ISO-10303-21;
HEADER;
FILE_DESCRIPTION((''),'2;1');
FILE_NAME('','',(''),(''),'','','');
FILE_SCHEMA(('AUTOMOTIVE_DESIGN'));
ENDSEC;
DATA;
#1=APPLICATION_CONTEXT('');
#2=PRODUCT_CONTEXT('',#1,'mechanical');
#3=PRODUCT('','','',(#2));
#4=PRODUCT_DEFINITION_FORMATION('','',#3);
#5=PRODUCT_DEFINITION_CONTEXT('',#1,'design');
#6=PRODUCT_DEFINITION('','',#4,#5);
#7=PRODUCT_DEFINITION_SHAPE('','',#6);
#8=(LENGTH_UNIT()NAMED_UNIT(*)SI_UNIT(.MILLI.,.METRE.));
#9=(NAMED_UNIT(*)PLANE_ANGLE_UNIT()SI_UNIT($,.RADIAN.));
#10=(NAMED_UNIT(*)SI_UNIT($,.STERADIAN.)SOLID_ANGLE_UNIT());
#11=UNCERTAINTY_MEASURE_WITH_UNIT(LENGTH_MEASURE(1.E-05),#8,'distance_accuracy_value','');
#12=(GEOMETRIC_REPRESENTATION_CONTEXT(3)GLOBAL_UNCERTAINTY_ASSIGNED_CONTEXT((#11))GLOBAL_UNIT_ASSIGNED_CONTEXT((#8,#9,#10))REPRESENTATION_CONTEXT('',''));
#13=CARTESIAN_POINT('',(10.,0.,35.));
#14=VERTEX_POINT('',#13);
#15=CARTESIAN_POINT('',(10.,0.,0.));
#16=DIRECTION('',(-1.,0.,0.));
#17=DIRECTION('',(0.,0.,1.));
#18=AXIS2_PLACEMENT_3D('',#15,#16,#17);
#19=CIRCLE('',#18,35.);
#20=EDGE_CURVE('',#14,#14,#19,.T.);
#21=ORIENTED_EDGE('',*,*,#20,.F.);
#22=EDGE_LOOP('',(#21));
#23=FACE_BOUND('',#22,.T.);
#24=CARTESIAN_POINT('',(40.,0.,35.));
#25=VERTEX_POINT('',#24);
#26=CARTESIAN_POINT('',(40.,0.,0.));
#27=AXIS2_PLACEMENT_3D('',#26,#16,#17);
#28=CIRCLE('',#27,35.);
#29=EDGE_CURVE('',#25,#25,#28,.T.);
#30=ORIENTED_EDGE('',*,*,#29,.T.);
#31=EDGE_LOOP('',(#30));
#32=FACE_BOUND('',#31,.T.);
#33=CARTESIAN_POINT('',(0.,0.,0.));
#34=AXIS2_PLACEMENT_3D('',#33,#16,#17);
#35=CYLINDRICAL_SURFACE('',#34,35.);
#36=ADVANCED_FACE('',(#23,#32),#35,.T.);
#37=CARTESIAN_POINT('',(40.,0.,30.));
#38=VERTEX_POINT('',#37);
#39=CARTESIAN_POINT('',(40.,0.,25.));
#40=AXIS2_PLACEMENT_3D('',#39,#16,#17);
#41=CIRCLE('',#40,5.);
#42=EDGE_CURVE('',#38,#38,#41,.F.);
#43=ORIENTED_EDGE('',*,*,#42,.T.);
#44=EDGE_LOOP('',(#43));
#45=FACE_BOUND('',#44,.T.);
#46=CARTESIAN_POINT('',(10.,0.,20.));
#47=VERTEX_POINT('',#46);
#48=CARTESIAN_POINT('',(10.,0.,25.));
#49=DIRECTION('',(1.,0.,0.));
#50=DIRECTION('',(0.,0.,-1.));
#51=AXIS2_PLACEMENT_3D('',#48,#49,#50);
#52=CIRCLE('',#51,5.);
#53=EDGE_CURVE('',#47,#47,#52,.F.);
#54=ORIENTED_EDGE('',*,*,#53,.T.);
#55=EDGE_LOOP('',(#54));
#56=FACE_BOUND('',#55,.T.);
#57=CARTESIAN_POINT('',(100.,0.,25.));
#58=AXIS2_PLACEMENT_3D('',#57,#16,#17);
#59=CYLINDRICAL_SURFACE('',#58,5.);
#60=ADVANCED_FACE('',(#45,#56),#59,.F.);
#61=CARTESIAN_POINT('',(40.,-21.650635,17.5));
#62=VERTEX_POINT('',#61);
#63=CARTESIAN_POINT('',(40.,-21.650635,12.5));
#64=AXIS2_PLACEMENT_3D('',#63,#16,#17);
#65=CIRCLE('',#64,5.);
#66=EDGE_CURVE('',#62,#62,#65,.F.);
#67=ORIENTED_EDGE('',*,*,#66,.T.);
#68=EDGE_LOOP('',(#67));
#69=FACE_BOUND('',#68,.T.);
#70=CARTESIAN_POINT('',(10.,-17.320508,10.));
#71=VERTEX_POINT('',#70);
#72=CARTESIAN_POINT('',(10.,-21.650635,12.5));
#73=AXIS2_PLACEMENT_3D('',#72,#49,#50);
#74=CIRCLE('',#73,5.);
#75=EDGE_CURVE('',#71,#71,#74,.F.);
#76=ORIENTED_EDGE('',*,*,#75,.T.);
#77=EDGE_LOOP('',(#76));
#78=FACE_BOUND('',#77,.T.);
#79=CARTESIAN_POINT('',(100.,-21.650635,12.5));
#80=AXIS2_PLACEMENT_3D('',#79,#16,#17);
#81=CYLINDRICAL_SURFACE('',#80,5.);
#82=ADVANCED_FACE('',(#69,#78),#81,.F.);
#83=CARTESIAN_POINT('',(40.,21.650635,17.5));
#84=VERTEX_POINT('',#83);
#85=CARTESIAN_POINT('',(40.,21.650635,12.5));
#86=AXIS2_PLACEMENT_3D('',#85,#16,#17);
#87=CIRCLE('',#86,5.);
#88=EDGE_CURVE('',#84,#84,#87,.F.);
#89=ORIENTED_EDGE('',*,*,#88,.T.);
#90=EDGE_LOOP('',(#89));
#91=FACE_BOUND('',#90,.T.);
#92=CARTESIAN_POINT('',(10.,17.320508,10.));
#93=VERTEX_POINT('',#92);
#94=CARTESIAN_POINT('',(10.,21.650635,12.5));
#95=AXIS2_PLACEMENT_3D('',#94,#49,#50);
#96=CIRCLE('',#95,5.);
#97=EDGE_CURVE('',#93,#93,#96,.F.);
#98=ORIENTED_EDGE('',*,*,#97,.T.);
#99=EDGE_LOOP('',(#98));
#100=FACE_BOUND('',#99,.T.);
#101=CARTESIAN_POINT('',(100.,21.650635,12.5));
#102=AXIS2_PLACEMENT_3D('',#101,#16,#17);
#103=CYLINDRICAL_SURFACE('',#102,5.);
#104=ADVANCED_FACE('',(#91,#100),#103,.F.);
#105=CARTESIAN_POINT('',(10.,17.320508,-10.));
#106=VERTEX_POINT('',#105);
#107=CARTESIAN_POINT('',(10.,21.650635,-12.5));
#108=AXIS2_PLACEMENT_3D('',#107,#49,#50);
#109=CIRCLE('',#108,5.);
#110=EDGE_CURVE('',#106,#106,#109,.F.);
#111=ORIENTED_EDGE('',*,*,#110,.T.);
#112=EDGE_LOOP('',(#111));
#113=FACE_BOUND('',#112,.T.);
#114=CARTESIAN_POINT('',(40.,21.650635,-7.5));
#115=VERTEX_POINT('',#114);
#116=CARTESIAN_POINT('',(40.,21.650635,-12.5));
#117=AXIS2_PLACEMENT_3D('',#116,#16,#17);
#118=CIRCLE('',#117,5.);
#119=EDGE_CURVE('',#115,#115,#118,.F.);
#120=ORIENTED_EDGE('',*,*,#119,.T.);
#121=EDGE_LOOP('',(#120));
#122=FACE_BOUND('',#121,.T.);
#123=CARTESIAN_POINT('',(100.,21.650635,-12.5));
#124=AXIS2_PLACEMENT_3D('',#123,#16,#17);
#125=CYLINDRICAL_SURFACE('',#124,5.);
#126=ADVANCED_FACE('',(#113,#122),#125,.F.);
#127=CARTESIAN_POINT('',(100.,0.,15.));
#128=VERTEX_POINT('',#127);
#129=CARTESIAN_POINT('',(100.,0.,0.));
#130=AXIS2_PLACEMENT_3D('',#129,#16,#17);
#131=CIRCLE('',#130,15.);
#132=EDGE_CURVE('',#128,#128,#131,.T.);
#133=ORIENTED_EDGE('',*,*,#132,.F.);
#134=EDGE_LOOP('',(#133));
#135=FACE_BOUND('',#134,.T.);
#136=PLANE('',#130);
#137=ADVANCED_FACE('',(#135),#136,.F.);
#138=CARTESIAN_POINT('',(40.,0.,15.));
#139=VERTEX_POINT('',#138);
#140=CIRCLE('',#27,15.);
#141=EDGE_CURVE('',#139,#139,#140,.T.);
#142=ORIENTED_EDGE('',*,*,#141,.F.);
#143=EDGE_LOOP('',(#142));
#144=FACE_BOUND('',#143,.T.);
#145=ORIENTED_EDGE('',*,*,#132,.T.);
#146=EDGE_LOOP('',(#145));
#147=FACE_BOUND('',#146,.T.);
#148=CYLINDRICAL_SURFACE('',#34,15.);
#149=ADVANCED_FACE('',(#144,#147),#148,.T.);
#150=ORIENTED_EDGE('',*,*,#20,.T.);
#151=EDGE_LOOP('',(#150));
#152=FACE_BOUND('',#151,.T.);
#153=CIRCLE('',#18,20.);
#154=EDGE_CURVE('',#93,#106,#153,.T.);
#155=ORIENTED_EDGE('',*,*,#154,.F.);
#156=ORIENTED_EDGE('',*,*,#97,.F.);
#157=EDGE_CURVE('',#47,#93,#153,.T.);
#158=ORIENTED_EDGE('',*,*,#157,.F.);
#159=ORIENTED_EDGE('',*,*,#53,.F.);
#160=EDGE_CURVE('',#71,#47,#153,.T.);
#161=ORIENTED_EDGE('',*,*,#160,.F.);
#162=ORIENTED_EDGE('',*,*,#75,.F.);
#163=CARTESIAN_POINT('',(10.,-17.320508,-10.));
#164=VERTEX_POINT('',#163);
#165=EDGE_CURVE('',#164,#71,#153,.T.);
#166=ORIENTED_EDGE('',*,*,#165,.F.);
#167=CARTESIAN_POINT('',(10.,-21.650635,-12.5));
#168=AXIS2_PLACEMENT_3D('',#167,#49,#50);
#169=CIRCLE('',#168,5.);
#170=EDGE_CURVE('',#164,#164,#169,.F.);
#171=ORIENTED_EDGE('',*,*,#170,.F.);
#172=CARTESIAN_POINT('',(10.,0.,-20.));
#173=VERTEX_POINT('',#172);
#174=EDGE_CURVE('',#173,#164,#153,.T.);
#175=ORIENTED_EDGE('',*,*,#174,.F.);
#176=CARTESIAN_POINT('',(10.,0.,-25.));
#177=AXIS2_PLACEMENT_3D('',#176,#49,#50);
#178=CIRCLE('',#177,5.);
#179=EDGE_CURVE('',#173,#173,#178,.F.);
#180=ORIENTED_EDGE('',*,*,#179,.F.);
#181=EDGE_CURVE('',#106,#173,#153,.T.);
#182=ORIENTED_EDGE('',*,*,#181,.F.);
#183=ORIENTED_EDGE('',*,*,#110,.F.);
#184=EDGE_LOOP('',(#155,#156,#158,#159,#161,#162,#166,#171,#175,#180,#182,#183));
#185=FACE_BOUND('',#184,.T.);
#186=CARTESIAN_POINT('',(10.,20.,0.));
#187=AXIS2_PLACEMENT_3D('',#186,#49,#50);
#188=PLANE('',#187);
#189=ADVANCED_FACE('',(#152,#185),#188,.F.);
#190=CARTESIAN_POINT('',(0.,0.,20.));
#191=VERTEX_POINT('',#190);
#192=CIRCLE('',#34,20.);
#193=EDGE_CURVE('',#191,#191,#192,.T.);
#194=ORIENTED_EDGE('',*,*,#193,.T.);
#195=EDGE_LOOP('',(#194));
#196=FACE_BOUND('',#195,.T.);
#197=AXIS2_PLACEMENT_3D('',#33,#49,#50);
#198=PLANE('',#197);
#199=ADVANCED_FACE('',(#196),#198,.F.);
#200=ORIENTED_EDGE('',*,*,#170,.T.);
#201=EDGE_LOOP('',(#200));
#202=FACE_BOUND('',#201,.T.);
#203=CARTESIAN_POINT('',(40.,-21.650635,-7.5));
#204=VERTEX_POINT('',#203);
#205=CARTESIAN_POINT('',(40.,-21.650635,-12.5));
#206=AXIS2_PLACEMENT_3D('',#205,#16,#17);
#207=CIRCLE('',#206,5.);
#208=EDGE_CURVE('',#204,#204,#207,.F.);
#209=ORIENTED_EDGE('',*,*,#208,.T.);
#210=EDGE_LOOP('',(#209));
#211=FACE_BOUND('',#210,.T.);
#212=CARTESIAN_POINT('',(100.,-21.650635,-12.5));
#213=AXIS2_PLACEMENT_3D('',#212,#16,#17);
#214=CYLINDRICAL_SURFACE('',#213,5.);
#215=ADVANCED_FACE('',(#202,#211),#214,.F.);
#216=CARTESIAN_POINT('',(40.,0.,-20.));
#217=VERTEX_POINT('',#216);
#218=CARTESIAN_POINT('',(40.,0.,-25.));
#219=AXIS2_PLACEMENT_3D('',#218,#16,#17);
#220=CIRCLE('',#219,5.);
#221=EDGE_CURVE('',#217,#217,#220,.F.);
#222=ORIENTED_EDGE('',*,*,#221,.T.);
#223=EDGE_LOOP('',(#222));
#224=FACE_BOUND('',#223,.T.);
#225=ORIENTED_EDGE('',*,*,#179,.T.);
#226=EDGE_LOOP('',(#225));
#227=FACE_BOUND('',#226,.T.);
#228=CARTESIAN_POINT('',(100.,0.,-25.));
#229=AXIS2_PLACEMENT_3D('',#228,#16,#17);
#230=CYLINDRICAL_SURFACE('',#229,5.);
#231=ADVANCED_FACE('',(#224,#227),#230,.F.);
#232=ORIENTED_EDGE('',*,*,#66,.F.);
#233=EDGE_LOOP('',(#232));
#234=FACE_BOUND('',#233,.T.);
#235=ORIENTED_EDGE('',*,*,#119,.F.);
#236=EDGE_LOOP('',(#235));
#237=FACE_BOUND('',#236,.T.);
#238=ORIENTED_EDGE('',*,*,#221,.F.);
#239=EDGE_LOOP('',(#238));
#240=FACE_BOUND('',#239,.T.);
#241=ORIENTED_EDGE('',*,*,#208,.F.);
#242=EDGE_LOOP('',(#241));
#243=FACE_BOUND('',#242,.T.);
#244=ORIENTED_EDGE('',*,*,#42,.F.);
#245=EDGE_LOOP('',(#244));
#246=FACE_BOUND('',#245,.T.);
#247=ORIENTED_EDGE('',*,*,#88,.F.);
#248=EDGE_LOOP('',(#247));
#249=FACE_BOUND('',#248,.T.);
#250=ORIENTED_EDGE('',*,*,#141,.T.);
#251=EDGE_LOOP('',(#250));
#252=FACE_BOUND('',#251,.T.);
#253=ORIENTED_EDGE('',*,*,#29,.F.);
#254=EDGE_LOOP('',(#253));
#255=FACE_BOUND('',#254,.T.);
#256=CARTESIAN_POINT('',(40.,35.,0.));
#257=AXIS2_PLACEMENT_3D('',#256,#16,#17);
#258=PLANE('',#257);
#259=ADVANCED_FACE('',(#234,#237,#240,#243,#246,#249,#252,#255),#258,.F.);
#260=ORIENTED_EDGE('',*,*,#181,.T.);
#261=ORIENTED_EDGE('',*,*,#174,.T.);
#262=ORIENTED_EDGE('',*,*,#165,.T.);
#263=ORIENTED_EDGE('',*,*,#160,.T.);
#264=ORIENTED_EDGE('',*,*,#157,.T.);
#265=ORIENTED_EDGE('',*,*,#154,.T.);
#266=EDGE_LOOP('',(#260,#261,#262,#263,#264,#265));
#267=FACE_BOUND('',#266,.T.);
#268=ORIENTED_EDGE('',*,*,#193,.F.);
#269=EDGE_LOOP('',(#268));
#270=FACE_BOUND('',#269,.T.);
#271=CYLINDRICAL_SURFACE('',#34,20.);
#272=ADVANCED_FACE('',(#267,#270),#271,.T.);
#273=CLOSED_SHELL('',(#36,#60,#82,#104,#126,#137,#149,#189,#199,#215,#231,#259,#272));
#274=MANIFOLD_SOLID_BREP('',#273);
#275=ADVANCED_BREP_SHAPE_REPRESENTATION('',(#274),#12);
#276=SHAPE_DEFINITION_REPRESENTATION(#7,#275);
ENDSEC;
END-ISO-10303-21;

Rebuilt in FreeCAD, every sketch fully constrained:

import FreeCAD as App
import Part
import Sketcher


def add_polygon(sketch, points):
    """Adds a closed chain of lines whose ends are joined by coincident constraints."""
    first, n = sketch.GeometryCount, len(points)
    for a, b in zip(points, points[1:] + points[:1]):
        sketch.addGeometry(Part.LineSegment(App.Vector(*a, 0), App.Vector(*b, 0)), False)
    for i in range(n):
        sketch.addConstraint(Sketcher.Constraint("Coincident", first + i, 2, first + (i + 1) % n, 1))

doc = App.newDocument("Part")
body = doc.addObject("PartDesign::Body", "Body")

# Sketch on XY plane
sketch1 = body.newObject("Sketcher::SketchObject", "Sketch")
sketch1.AttachmentSupport = (doc.getObject("XY_Plane"), [""])
sketch1.MapMode = "FlatFace"
add_polygon(sketch1, [(0, 0), (100, 0), (100, 15), (40, 15), (40, 35), (10, 35), (10, 20), (0, 20)])  # lines 0-7
sketch1.addConstraint([
    Sketcher.Constraint("Horizontal", 0),
    Sketcher.Constraint("Vertical", 1),
    Sketcher.Constraint("Horizontal", 2),
    Sketcher.Constraint("Vertical", 3),
    Sketcher.Constraint("Horizontal", 4),
    Sketcher.Constraint("Vertical", 5),
    Sketcher.Constraint("Horizontal", 6),
    Sketcher.Constraint("Vertical", 7),
    Sketcher.Constraint("Coincident", 7, 2, -1, 1),
    Sketcher.Constraint("Equal", 1, 5),
    Sketcher.Constraint("DistanceX", 0, 1, 0, 2, 100.0),
    Sketcher.Constraint("DistanceX", 2, 2, 2, 1, 60.0),
    Sketcher.Constraint("DistanceX", 4, 2, 4, 1, 30.0),
    Sketcher.Constraint("DistanceY", 1, 1, 1, 2, 15.0),
    Sketcher.Constraint("DistanceY", 3, 1, 3, 2, 20.0),
])
revolution = body.newObject("PartDesign::Revolution", "Revolution")
revolution.Profile = sketch1
revolution.ReferenceAxis = (sketch1, ["H_Axis"])
revolution.Angle = 360

# Sketch on YZ plane
sketch2 = body.newObject("Sketcher::SketchObject", "Sketch001")
sketch2.AttachmentSupport = (doc.getObject("YZ_Plane"), [""])
sketch2.MapMode = "FlatFace"
sketch2.addGeometry(Part.Circle(App.Vector(0, -25, 0), App.Vector(0, 0, 1), 5), False)
sketch2.addConstraint([
    Sketcher.Constraint("PointOnObject", 0, 3, -2),
    Sketcher.Constraint("Diameter", 0, 10.0),
    Sketcher.Constraint("DistanceY", 0, 3, -1, 1, 25.0),
])
pocket1 = body.newObject("PartDesign::Pocket", "Pocket")
pocket1.Profile = sketch2
pocket1.Type = "ThroughAll"
pocket1.Reversed = True

# Sketch on YZ plane
sketch3 = body.newObject("Sketcher::SketchObject", "Sketch002")
sketch3.AttachmentSupport = (doc.getObject("YZ_Plane"), [""])
sketch3.MapMode = "FlatFace"
sketch3.addGeometry(Part.Circle(App.Vector(22, -12, 0), App.Vector(0, 0, 1), 5), False)
sketch3.addConstraint([
    Sketcher.Constraint("Diameter", 0, 10.0),
    Sketcher.Constraint("DistanceY", 0, 3, -1, 1, 12.5),
    Sketcher.Constraint("DistanceX", -1, 1, 0, 3, 21.650635),
])
pocket2 = body.newObject("PartDesign::Pocket", "Pocket001")
pocket2.Profile = sketch3
pocket2.Type = "ThroughAll"
pocket2.Reversed = True

# Sketch on YZ plane
sketch4 = body.newObject("Sketcher::SketchObject", "Sketch003")
sketch4.AttachmentSupport = (doc.getObject("YZ_Plane"), [""])
sketch4.MapMode = "FlatFace"
sketch4.addGeometry(Part.Circle(App.Vector(22, 12, 0), App.Vector(0, 0, 1), 5), False)
sketch4.addConstraint([
    Sketcher.Constraint("Diameter", 0, 10.0),
    Sketcher.Constraint("DistanceY", -1, 1, 0, 3, 12.5),
    Sketcher.Constraint("DistanceX", -1, 1, 0, 3, 21.650635),
])
pocket3 = body.newObject("PartDesign::Pocket", "Pocket002")
pocket3.Profile = sketch4
pocket3.Type = "ThroughAll"
pocket3.Reversed = True

# Sketch on YZ plane
sketch5 = body.newObject("Sketcher::SketchObject", "Sketch004")
sketch5.AttachmentSupport = (doc.getObject("YZ_Plane"), [""])
sketch5.MapMode = "FlatFace"
sketch5.addGeometry(Part.Circle(App.Vector(0, 25, 0), App.Vector(0, 0, 1), 5), False)
sketch5.addConstraint([
    Sketcher.Constraint("PointOnObject", 0, 3, -2),
    Sketcher.Constraint("Diameter", 0, 10.0),
    Sketcher.Constraint("DistanceY", -1, 1, 0, 3, 25.0),
])
pocket4 = body.newObject("PartDesign::Pocket", "Pocket003")
pocket4.Profile = sketch5
pocket4.Type = "ThroughAll"
pocket4.Reversed = True

# Sketch on YZ plane
sketch6 = body.newObject("Sketcher::SketchObject", "Sketch005")
sketch6.AttachmentSupport = (doc.getObject("YZ_Plane"), [""])
sketch6.MapMode = "FlatFace"
sketch6.addGeometry(Part.Circle(App.Vector(-22, 12, 0), App.Vector(0, 0, 1), 5), False)
sketch6.addConstraint([
    Sketcher.Constraint("Diameter", 0, 10.0),
    Sketcher.Constraint("DistanceY", -1, 1, 0, 3, 12.5),
    Sketcher.Constraint("DistanceX", 0, 3, -1, 1, 21.650635),
])
pocket5 = body.newObject("PartDesign::Pocket", "Pocket004")
pocket5.Profile = sketch6
pocket5.Type = "ThroughAll"
pocket5.Reversed = True

# Sketch on YZ plane
sketch7 = body.newObject("Sketcher::SketchObject", "Sketch006")
sketch7.AttachmentSupport = (doc.getObject("YZ_Plane"), [""])
sketch7.MapMode = "FlatFace"
sketch7.addGeometry(Part.Circle(App.Vector(-22, -12, 0), App.Vector(0, 0, 1), 5), False)
sketch7.addConstraint([
    Sketcher.Constraint("Diameter", 0, 10.0),
    Sketcher.Constraint("DistanceY", 0, 3, -1, 1, 12.5),
    Sketcher.Constraint("DistanceX", 0, 3, -1, 1, 21.650635),
])
pocket6 = body.newObject("PartDesign::Pocket", "Pocket005")
pocket6.Profile = sketch7
pocket6.Type = "ThroughAll"
pocket6.Reversed = True

doc.recompute()
